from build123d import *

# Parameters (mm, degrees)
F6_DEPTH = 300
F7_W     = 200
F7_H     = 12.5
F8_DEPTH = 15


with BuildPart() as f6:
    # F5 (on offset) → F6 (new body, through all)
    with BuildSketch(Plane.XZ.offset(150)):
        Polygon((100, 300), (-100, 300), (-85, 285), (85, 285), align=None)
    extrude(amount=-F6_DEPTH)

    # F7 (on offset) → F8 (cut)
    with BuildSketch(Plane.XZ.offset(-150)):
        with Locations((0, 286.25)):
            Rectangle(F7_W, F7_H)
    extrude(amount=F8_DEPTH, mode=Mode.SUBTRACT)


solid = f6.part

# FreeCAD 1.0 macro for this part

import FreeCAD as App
import Part
import Sketcher

V = App.Vector
Q = App.Units.Quantity


def add_polygon(sketch, points):
    """Adds a closed chain of lines whose ends are joined by coincident constraints."""
    first, n = sketch.GeometryCount, len(points)
    for a, b in zip(points, points[1:] + points[:1]):
        sketch.addGeometry(Part.LineSegment(App.Vector(*a, 0), App.Vector(*b, 0)), False)
    for i in range(n):
        sketch.addConstraint(Sketcher.Constraint("Coincident", first + i, 2, first + (i + 1) % n, 1))

doc = App.newDocument("Part")
params = doc.addObject("Spreadsheet::Sheet", "Params")
for row, (alias, value) in enumerate([
    ("sketch1_width", "200 mm"),
    ("sketch1_width2", "170 mm"),
    ("pad1_length", "300 mm"),
    ("sketch2_width", "200 mm"),
    ("sketch2_height", "12.5 mm"),
    ("pocket1_length", "15 mm"),
], start=1):
    params.set(f"A{row}", alias)
    params.set(f"B{row}", "=" + value)
    params.setAlias(f"B{row}", alias)

body = doc.addObject("PartDesign::Body", "Body")

sketch1 = doc.addObject("Sketcher::SketchObject", "Sketch")
body.addObject(sketch1)
sketch1.AttachmentSupport = (doc.XZ_Plane, [""])
sketch1.MapMode = "FlatFace"
sketch1.AttachmentOffset = App.Placement(V(0, 0, 150), App.Rotation())
add_polygon(sketch1, [(100, 300), (-100, 300), (-85, 285), (85, 285)])
sketch1.addConstraint([
    Sketcher.Constraint("Horizontal", 0),
    Sketcher.Constraint("Horizontal", 2),
    Sketcher.Constraint("Perpendicular", 1, 3),
    Sketcher.Constraint("Equal", 1, 3),
    Sketcher.Constraint("DistanceX", 0, 2, 0, 1, Q("200 mm")),
    Sketcher.Constraint("DistanceX", 2, 1, 2, 2, Q("170 mm")),
    Sketcher.Constraint("DistanceX", 0, 2, -1, 1, Q("100 mm")),
    Sketcher.Constraint("DistanceY", -1, 1, 0, 2, Q("300 mm")),
])
sketch1.setExpression("Constraints[8]", "Params.sketch1_width")
sketch1.setExpression("Constraints[9]", "Params.sketch1_width2")
pad1 = doc.addObject("PartDesign::Pad", "Pad")
body.addObject(pad1)
pad1.Profile = sketch1
pad1.setExpression("Length", "Params.pad1_length")
pad1.Reversed = True

sketch2 = doc.addObject("Sketcher::SketchObject", "Sketch001")
body.addObject(sketch2)
sketch2.AttachmentSupport = (doc.XZ_Plane, [""])
sketch2.MapMode = "FlatFace"
sketch2.AttachmentOffset = App.Placement(V(0, 0, -150), App.Rotation())
add_polygon(sketch2, [(-100, 292), (-100, 280), (100, 280), (100, 292)])
sketch2.addConstraint([
    Sketcher.Constraint("Vertical", 0),
    Sketcher.Constraint("Horizontal", 1),
    Sketcher.Constraint("Vertical", 2),
    Sketcher.Constraint("Horizontal", 3),
    Sketcher.Constraint("DistanceX", 1, 1, 1, 2, Q("200 mm")),
    Sketcher.Constraint("DistanceY", 0, 2, 0, 1, Q("12.5 mm")),
    Sketcher.Constraint("DistanceX", 0, 2, -1, 1, Q("100 mm")),
    Sketcher.Constraint("DistanceY", -1, 1, 0, 2, Q("280 mm")),
])
sketch2.setExpression("Constraints[8]", "Params.sketch2_width")
sketch2.setExpression("Constraints[9]", "Params.sketch2_height")
pocket1 = doc.addObject("PartDesign::Pocket", "Pocket")
body.addObject(pocket1)
pocket1.Profile = sketch2
pocket1.setExpression("Length", "Params.pocket1_length")
pocket1.Reversed = True

doc.recompute()
